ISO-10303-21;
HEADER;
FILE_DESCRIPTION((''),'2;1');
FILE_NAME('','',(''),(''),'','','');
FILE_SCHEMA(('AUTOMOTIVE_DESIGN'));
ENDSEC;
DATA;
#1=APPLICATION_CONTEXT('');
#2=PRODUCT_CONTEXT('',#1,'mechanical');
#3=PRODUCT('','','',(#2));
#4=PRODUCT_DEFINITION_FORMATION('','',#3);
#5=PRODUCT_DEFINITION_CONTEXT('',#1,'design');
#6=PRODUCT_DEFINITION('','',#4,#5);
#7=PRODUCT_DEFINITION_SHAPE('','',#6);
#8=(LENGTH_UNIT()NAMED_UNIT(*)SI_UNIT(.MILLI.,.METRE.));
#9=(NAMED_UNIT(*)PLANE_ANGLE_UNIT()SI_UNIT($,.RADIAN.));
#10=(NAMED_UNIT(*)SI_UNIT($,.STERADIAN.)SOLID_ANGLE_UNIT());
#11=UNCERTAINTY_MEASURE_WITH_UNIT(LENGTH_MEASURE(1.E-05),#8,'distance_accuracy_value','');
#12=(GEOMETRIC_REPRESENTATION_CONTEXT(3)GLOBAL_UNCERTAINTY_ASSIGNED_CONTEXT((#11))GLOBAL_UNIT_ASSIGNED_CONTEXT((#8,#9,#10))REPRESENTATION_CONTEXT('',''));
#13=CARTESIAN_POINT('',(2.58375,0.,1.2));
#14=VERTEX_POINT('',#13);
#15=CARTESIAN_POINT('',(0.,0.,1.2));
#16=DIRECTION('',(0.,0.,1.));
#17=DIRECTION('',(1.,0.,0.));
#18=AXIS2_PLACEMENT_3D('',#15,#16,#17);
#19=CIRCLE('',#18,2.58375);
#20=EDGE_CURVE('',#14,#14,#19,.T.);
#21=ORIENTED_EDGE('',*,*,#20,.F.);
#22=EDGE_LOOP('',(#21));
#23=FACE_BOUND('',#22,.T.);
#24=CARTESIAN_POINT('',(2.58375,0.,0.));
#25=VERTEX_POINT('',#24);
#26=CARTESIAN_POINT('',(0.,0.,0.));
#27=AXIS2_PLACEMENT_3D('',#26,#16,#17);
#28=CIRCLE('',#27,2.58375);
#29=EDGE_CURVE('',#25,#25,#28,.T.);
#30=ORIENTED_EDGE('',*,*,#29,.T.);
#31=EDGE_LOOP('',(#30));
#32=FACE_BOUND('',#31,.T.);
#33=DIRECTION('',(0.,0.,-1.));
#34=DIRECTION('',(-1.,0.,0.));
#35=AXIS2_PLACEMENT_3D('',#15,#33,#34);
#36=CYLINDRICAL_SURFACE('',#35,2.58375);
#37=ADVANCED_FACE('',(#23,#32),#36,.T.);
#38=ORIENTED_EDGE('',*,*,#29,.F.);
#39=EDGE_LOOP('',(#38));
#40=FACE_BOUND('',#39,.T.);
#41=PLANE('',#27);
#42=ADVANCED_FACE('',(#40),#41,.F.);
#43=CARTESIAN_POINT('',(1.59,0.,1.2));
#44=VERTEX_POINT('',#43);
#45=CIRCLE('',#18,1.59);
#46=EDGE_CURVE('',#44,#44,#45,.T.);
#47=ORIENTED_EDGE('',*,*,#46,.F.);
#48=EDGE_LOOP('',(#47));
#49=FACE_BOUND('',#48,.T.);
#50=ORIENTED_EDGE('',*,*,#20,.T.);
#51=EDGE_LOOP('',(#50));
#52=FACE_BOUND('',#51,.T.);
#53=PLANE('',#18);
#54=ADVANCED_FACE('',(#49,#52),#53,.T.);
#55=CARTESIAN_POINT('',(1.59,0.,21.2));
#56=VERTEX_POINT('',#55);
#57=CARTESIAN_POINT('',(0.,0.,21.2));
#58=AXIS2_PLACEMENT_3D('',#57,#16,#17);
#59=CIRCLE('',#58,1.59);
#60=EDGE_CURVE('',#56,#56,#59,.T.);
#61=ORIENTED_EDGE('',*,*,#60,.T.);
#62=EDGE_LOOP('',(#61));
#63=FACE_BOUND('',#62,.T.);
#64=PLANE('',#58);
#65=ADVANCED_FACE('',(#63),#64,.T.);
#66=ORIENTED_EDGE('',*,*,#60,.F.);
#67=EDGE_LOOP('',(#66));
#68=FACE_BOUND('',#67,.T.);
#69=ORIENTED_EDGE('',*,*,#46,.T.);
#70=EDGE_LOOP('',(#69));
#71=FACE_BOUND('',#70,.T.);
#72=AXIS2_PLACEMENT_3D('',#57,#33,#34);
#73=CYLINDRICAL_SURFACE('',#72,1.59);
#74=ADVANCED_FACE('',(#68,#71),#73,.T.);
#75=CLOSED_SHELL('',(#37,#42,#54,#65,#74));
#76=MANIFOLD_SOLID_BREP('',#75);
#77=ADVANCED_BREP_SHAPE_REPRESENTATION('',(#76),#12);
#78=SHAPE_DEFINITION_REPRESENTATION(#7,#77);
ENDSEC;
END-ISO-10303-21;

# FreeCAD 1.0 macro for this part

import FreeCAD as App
import Part
import Sketcher
Q = App.Units.Quantity

doc = App.newDocument("Part")
body = doc.addObject("PartDesign::Body", "Body")

# Sketch on XY plane
sketch1 = doc.addObject("Sketcher::SketchObject", "Sketch")
body.addObject(sketch1)
sketch1.AttachmentSupport = (doc.XY_Plane, [""])
sketch1.MapMode = "FlatFace"
sketch1.addGeometry(Part.Circle(App.Vector(0, 0, 0), App.Vector(0, 0, 1), 2.6), False)
sketch1.addConstraint([
    Sketcher.Constraint("Coincident", 0, 3, -1, 1),
    Sketcher.Constraint("Diameter", 0, Q("5.1675 mm")),
])
pad1 = doc.addObject("PartDesign::Pad", "Pad")
body.addObject(pad1)
pad1.Profile = sketch1
pad1.Length = 1.2

# Sketch on XY plane
sketch2 = doc.addObject("Sketcher::SketchObject", "Sketch001")
body.addObject(sketch2)
sketch2.AttachmentSupport = (doc.XY_Plane, [""])
sketch2.MapMode = "FlatFace"
sketch2.AttachmentOffset = App.Placement(App.Vector(0, 0, 1.2), App.Rotation())
sketch2.addGeometry(Part.Circle(App.Vector(0, 0, 0), App.Vector(0, 0, 1), 1.6), False)
sketch2.addConstraint([
    Sketcher.Constraint("Coincident", 0, 3, -1, 1),
    Sketcher.Constraint("Diameter", 0, Q("3.18 mm")),
])
pad2 = doc.addObject("PartDesign::Pad", "Pad001")
body.addObject(pad2)
pad2.Profile = sketch2
pad2.Length = 20

doc.recompute()
